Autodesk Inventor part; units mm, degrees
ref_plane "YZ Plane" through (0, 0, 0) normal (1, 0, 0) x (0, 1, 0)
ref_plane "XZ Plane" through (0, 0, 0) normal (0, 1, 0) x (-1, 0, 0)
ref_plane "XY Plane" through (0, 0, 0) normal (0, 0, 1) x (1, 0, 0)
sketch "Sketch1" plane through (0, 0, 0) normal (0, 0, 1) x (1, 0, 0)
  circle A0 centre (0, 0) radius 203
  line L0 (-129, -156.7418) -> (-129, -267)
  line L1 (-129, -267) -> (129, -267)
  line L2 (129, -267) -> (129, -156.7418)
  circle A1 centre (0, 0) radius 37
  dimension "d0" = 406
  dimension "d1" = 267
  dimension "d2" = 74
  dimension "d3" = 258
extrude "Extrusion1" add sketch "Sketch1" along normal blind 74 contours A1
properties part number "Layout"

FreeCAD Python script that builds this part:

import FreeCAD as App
import Part
import Sketcher

V = App.Vector

doc = App.newDocument("Part")
body = doc.addObject("PartDesign::Body", "Body")

sketch1 = body.newObject("Sketcher::SketchObject", "Sketch")
sketch1.AttachmentSupport = (doc.getObject("XY_Plane"), [""])
sketch1.MapMode = "FlatFace"
sketch1.addGeometry(Part.Circle(V(0, 0, 0), V(0, 0, 1), 37), False)
sketch1.addConstraint(Sketcher.Constraint("Coincident", 0, 3, -1, 1))
sketch1.addConstraint(Sketcher.Constraint("Diameter", 0, 74.0))
pad1 = body.newObject("PartDesign::Pad", "Pad")
pad1.Profile = sketch1
pad1.Length = 74

doc.recompute()
